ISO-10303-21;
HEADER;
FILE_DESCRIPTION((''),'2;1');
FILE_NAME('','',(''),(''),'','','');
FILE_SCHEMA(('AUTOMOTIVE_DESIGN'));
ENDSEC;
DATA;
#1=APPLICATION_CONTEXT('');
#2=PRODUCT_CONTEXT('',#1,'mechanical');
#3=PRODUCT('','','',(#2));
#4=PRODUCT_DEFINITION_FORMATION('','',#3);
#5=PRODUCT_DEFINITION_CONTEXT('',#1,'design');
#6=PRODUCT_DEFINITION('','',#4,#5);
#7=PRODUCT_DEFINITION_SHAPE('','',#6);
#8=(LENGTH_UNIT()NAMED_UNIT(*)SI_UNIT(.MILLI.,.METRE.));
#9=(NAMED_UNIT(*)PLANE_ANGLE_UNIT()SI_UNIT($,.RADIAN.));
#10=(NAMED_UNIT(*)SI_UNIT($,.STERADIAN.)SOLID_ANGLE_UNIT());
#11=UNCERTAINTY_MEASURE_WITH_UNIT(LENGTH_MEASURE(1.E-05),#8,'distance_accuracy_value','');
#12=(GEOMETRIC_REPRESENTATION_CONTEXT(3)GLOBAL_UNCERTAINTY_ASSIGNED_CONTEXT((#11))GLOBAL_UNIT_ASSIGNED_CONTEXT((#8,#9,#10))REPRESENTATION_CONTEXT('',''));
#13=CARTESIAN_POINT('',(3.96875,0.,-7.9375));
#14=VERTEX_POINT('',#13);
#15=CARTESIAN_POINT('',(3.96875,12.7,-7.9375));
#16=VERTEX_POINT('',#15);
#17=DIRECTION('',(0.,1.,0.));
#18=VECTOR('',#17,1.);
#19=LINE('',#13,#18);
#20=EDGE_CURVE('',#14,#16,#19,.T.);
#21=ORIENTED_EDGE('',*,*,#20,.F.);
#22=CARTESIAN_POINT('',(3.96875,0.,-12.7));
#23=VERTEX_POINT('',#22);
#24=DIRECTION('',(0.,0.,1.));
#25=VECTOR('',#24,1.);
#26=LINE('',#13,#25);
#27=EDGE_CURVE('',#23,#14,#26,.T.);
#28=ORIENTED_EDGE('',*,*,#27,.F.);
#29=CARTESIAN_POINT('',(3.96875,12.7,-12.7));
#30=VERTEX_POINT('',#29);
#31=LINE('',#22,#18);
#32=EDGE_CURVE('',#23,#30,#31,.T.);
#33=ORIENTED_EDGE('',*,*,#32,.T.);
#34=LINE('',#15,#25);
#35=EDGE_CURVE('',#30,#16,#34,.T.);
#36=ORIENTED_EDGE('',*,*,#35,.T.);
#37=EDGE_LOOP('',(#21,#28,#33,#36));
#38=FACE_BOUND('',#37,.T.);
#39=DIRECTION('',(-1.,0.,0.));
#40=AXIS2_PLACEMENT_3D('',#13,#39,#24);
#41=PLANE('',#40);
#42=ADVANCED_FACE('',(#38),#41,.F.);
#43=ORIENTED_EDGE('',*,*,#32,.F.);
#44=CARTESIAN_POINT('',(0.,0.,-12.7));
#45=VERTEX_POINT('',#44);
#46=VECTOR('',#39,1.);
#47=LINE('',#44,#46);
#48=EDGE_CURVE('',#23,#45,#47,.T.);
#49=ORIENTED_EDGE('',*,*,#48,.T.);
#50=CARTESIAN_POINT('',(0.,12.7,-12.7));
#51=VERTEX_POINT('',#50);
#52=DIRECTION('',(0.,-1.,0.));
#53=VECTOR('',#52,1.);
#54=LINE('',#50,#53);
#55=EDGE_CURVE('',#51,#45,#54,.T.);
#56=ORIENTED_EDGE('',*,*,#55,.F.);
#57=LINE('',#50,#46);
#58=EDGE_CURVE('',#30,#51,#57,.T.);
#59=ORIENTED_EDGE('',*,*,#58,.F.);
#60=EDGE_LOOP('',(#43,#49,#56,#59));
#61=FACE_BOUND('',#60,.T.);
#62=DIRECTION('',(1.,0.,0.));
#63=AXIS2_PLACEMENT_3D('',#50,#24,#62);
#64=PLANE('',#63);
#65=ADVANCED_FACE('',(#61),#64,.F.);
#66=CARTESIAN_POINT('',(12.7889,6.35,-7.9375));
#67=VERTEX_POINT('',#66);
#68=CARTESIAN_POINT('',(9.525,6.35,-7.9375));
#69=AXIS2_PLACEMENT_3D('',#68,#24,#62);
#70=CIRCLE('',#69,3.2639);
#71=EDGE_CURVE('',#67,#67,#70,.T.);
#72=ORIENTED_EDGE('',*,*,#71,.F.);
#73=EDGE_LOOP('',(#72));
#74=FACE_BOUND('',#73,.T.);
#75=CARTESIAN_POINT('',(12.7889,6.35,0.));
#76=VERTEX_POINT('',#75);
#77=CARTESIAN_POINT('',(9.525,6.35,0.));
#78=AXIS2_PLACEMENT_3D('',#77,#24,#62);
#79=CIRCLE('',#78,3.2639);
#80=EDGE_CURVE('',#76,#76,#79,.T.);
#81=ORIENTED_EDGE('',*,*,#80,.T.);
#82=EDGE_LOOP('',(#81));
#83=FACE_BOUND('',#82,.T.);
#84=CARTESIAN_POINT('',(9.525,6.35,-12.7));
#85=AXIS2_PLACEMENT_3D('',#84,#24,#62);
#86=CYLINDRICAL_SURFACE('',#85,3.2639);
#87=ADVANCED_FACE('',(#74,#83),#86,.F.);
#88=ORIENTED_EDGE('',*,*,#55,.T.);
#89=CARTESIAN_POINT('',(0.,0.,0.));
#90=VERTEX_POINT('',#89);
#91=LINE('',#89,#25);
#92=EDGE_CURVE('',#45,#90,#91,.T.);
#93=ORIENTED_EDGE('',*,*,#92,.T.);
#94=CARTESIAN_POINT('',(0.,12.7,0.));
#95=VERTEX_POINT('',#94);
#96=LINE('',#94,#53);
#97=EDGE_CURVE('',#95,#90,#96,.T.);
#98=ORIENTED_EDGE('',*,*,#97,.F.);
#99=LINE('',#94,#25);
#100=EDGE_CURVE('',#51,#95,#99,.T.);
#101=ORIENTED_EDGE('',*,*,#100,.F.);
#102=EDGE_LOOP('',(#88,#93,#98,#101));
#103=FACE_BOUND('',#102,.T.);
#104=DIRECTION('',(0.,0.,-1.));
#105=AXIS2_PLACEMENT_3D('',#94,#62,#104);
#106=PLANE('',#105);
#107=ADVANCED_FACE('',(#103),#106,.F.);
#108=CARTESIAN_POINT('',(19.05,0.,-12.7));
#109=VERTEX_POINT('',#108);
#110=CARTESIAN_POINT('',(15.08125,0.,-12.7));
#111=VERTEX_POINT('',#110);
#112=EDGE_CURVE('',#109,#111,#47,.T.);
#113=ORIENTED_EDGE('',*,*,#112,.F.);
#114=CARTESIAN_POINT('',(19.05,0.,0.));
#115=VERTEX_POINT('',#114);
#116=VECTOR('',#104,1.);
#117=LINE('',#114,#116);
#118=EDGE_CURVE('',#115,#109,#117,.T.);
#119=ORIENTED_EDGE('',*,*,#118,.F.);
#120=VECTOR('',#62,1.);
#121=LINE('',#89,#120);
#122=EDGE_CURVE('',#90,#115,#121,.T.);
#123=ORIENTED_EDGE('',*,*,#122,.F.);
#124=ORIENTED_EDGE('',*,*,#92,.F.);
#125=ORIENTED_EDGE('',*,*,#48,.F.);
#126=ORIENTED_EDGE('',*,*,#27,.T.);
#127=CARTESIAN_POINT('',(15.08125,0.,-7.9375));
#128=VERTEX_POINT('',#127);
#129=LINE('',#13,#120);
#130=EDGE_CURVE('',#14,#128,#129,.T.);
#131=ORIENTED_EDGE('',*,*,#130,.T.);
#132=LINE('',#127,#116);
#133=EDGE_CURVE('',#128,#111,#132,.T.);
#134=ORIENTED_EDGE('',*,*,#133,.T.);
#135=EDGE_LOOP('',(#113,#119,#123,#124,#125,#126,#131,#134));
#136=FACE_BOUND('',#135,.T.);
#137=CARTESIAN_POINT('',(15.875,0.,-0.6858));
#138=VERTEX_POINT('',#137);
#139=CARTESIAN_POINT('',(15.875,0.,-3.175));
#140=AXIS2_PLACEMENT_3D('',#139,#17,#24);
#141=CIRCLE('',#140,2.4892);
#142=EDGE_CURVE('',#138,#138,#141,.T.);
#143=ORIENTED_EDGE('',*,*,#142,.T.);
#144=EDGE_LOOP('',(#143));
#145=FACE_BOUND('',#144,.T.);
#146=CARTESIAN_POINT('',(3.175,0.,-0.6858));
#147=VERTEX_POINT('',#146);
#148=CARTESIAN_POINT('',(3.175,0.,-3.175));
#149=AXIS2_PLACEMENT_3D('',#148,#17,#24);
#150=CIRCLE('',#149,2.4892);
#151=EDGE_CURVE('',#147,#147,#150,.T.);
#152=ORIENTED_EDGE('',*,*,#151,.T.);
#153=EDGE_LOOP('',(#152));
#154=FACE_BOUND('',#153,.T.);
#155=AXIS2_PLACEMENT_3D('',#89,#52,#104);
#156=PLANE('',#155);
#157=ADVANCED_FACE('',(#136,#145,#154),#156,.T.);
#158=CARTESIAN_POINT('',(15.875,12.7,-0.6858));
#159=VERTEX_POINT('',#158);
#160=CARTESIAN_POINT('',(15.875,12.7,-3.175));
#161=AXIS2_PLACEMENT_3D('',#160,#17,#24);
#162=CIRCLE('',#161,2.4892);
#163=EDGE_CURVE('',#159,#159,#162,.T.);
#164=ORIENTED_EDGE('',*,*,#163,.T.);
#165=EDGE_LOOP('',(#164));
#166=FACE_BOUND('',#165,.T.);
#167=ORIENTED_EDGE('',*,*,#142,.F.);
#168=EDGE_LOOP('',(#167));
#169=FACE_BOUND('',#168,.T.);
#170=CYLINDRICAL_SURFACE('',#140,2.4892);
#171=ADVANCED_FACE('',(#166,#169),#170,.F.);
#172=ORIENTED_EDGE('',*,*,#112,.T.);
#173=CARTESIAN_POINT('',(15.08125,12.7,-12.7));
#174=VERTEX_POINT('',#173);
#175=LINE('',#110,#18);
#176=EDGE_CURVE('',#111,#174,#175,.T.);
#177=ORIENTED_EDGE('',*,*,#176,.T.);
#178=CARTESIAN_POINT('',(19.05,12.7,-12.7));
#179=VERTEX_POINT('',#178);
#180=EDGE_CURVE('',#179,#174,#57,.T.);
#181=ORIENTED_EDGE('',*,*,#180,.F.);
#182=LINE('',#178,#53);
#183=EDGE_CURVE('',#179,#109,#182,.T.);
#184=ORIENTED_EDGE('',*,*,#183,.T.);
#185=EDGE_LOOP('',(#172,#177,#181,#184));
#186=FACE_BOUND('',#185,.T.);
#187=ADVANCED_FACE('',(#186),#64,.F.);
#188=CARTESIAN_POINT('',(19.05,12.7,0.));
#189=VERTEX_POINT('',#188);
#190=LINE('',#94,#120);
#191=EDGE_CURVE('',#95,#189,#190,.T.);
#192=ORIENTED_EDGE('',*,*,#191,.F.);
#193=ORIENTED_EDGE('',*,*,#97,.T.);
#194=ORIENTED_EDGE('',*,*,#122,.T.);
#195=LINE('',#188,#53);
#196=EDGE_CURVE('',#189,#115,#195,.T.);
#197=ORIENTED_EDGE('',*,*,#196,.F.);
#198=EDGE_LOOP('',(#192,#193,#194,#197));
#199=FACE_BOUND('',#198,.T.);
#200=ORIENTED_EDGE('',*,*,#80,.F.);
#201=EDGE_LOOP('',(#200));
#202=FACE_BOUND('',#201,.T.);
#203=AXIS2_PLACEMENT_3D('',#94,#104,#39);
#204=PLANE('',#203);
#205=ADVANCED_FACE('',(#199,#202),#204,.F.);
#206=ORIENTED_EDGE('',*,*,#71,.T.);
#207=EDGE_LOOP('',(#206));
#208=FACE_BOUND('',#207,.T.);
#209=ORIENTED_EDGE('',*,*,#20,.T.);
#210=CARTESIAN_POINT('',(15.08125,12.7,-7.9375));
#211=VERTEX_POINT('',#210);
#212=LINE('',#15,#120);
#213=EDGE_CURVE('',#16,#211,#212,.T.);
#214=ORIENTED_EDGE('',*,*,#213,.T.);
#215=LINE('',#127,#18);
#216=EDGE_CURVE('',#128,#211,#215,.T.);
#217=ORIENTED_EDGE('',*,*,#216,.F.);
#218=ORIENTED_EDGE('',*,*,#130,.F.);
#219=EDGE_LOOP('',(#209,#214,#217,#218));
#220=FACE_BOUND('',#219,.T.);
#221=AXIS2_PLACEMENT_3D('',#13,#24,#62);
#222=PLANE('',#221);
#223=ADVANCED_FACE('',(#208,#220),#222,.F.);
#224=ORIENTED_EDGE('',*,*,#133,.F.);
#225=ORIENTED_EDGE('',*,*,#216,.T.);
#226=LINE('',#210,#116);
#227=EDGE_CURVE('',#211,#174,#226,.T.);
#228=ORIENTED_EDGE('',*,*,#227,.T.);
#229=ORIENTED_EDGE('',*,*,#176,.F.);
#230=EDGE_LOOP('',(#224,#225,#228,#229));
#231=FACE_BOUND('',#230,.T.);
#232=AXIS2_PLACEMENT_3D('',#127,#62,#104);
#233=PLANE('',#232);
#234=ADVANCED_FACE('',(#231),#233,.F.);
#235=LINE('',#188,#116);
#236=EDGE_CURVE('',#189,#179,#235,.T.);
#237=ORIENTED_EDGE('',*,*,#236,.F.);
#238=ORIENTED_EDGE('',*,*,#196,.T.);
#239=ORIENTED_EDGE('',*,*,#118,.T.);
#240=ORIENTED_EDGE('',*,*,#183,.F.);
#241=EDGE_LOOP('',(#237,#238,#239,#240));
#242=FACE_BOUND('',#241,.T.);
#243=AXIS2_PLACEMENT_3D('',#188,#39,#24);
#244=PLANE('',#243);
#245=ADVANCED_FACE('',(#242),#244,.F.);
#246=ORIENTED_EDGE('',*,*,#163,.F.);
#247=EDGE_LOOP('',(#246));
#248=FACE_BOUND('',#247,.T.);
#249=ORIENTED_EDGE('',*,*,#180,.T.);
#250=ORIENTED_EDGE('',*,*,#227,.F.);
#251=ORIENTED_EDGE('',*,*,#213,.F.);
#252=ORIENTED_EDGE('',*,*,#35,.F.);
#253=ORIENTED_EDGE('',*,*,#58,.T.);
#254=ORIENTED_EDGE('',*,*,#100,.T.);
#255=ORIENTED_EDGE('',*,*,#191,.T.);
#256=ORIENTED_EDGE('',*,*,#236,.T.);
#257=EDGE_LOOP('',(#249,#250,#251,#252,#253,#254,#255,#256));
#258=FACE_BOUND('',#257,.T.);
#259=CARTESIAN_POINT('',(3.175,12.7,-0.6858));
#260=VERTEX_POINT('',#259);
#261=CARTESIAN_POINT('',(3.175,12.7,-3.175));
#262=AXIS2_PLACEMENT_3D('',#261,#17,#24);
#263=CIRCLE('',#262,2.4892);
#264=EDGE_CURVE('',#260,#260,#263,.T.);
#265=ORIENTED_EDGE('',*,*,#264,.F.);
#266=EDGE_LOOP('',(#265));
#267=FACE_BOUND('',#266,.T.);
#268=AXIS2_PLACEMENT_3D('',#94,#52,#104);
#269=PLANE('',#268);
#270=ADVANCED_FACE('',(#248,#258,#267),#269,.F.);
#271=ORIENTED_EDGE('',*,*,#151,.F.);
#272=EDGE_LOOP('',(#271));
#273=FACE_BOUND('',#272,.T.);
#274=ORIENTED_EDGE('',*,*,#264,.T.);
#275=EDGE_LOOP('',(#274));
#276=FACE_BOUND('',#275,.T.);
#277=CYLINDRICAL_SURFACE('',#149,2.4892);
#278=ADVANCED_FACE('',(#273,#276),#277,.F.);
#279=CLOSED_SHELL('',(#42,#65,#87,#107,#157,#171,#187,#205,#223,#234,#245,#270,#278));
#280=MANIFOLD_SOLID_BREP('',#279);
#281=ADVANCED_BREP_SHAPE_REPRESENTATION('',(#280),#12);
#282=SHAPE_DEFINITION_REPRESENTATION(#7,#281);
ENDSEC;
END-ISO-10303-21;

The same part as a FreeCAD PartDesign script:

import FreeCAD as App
import Part
import Sketcher
from FreeCAD import Vector
Q = App.Units.Quantity

doc = App.newDocument("Part")
body = doc.addObject("PartDesign::Body", "Body")

sketch1 = doc.addObject("Sketcher::SketchObject", "Sketch")
body.addObject(sketch1)
sketch1.AttachmentSupport = (doc.XZ_Plane, [""])
sketch1.MapMode = "FlatFace"
sketch1.addGeometry([
    Part.LineSegment(Vector(0, -12.7, 0), Vector(0, 0, 0)),
    Part.LineSegment(Vector(0, 0, 0), Vector(19.05, 0, 0)),
    Part.LineSegment(Vector(19.05, 0, 0), Vector(19.05, -12.7, 0)),
    Part.LineSegment(Vector(19.05, -12.7, 0), Vector(0, -12.7, 0)),
], False)
sketch1.addConstraint([
    Sketcher.Constraint("Coincident", 0, 2, 1, 1),
    Sketcher.Constraint("Coincident", 1, 2, 2, 1),
    Sketcher.Constraint("Coincident", 2, 2, 3, 1),
    Sketcher.Constraint("Coincident", 3, 2, 0, 1),
    Sketcher.Constraint("Vertical", 0),
    Sketcher.Constraint("Horizontal", 1),
    Sketcher.Constraint("Vertical", 2),
    Sketcher.Constraint("Horizontal", 3),
    Sketcher.Constraint("Coincident", 0, 2, -1, 1),
    Sketcher.Constraint("DistanceY", 0, 1, 0, 2, Q("0.5 in")),
    Sketcher.Constraint("DistanceX", 1, 1, 1, 2, Q("0.75 in")),
])
pad1 = doc.addObject("PartDesign::Pad", "Pad")
body.addObject(pad1)
pad1.Profile = sketch1
pad1.Length = Q("0.5 in")
pad1.Reversed = True

sketch2 = doc.addObject("Sketcher::SketchObject", "Sketch001")
body.addObject(sketch2)
sketch2.AttachmentSupport = (doc.XZ_Plane, [""])
sketch2.MapMode = "FlatFace"
sketch2.AttachmentOffset = App.Placement(Vector(0, 0, -0.5 * 25.4), App.Rotation())
sketch2.addGeometry([
    Part.Circle(Vector(3.175, -3.175, 0), Vector(0, 0, 1), 2.4892),
    Part.Circle(Vector(15.875, -3.175, 0), Vector(0, 0, 1), 2.4892),
    Part.LineSegment(Vector(3.96875, -12.7, 0), Vector(3.96875, -7.9375, 0)),
    Part.LineSegment(Vector(3.96875, -7.9375, 0), Vector(15.08125, -7.9375, 0)),
    Part.LineSegment(Vector(15.08125, -7.9375, 0), Vector(15.08125, -12.7, 0)),
    Part.LineSegment(Vector(15.08125, -12.7, 0), Vector(3.96875, -12.7, 0)),
], False)
sketch2.addConstraint([
    Sketcher.Constraint("Coincident", 2, 2, 3, 1),
    Sketcher.Constraint("Coincident", 3, 2, 4, 1),
    Sketcher.Constraint("Coincident", 4, 2, 5, 1),
    Sketcher.Constraint("Coincident", 5, 2, 2, 1),
    Sketcher.Constraint("Vertical", 2),
    Sketcher.Constraint("Horizontal", 3),
    Sketcher.Constraint("Vertical", 4),
    Sketcher.Constraint("Horizontal", 5),
    Sketcher.Constraint("Equal", 0, 1),
    Sketcher.Constraint("Horizontal", 0, 3, 1, 3),
    Sketcher.Constraint("Diameter", 0, Q("0.196 in")),
    Sketcher.Constraint("DistanceY", 4, 2, -1, 1, Q("0.5 in")),
    Sketcher.Constraint("DistanceX", 0, 3, 1, 3, Q("0.5 in")),
    Sketcher.Constraint("DistanceX", 3, 1, 3, 2, Q("0.4375 in")),
    Sketcher.Constraint("DistanceY", 2, 1, 2, 2, Q("0.1875 in")),
    Sketcher.Constraint("DistanceX", -1, 1, 0, 3, Q("0.125 in")),
    Sketcher.Constraint("DistanceY", 0, 3, -1, 1, Q("0.125 in")),
    Sketcher.Constraint("DistanceX", -1, 1, 2, 2, Q("0.15625 in")),
])
pocket1 = doc.addObject("PartDesign::Pocket", "Pocket")
body.addObject(pocket1)
pocket1.Profile = sketch2
pocket1.Length = Q("0.5 in")
pocket1.Reversed = True

sketch3 = doc.addObject("Sketcher::SketchObject", "Sketch002")
body.addObject(sketch3)
sketch3.AttachmentSupport = (doc.XY_Plane, [""])
sketch3.MapMode = "FlatFace"
sketch3.addGeometry(Part.Circle(Vector(9.525, 6.35, 0), Vector(0, 0, 1), 3.2639), False)
sketch3.addConstraint([
    Sketcher.Constraint("Diameter", 0, Q("0.257 in")),
    Sketcher.Constraint("DistanceY", -1, 1, 0, 3, Q("0.25 in")),
    Sketcher.Constraint("DistanceX", -1, 1, 0, 3, Q("0.375 in")),
])
pocket2 = doc.addObject("PartDesign::Pocket", "Pocket001")
body.addObject(pocket2)
pocket2.Profile = sketch3
pocket2.Length = Q("0.5 in")

doc.recompute()
